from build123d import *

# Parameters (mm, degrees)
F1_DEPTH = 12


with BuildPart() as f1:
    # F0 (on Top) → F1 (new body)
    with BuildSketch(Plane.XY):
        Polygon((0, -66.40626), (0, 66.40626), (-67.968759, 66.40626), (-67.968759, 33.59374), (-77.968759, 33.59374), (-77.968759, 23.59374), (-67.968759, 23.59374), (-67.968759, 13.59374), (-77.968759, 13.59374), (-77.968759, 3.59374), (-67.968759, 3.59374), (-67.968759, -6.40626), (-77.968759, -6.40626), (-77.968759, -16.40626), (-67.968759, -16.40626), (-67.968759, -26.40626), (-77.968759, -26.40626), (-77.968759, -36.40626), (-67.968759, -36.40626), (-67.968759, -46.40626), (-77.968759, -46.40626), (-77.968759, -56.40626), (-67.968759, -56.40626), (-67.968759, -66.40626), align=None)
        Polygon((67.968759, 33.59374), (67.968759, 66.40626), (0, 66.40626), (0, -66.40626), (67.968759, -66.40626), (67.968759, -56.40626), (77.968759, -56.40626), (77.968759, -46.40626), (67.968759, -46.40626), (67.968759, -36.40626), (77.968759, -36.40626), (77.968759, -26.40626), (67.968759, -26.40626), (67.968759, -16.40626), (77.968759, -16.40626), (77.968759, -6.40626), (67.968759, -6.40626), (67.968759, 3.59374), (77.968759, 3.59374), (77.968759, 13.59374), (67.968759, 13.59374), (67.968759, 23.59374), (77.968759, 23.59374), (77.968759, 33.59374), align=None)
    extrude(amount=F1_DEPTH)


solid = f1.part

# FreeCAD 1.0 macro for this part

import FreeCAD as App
import Part
import Sketcher
from FreeCAD import Vector
Q = App.Units.Quantity

doc = App.newDocument("Part")
body = doc.addObject("PartDesign::Body", "Body")

# Sketch on XY plane
sketch1 = body.newObject("Sketcher::SketchObject", "Sketch")
sketch1.AttachmentSupport = (doc.getObject("XY_Plane"), [""])
sketch1.MapMode = "FlatFace"
sketch1.addGeometry([
    Part.LineSegment(Vector(-67.968759, 66.40626, 0), Vector(-67.968759, 33.59374, 0)),  # 0
    Part.LineSegment(Vector(-67.968759, 33.59374, 0), Vector(-77.968759, 33.59374, 0)),  # 1
    Part.LineSegment(Vector(-77.968759, 33.59374, 0), Vector(-77.968759, 23.59374, 0)),  # 2
    Part.LineSegment(Vector(-77.968759, 23.59374, 0), Vector(-67.968759, 23.59374, 0)),  # 3
    Part.LineSegment(Vector(-67.968759, 23.59374, 0), Vector(-67.968759, 13.59374, 0)),  # 4
    Part.LineSegment(Vector(-67.968759, 13.59374, 0), Vector(-77.968759, 13.59374, 0)),  # 5
    Part.LineSegment(Vector(-77.968759, 13.59374, 0), Vector(-77.968759, 3.59374, 0)),  # 6
    Part.LineSegment(Vector(-77.968759, 3.59374, 0), Vector(-67.968759, 3.59374, 0)),  # 7
    Part.LineSegment(Vector(-67.968759, 3.59374, 0), Vector(-67.968759, -6.40626, 0)),  # 8
    Part.LineSegment(Vector(-67.968759, -6.40626, 0), Vector(-77.968759, -6.40626, 0)),  # 9
    Part.LineSegment(Vector(-77.968759, -6.40626, 0), Vector(-77.968759, -16.40626, 0)),  # 10
    Part.LineSegment(Vector(-77.968759, -16.40626, 0), Vector(-67.968759, -16.40626, 0)),  # 11
    Part.LineSegment(Vector(-67.968759, -16.40626, 0), Vector(-67.968759, -26.40626, 0)),  # 12
    Part.LineSegment(Vector(-67.968759, -26.40626, 0), Vector(-77.968759, -26.40626, 0)),  # 13
    Part.LineSegment(Vector(-77.968759, -26.40626, 0), Vector(-77.968759, -36.40626, 0)),  # 14
    Part.LineSegment(Vector(-77.968759, -36.40626, 0), Vector(-67.968759, -36.40626, 0)),  # 15
    Part.LineSegment(Vector(-67.968759, -36.40626, 0), Vector(-67.968759, -46.40626, 0)),  # 16
    Part.LineSegment(Vector(-67.968759, -46.40626, 0), Vector(-77.968759, -46.40626, 0)),  # 17
    Part.LineSegment(Vector(-77.968759, -46.40626, 0), Vector(-77.968759, -56.40626, 0)),  # 18
    Part.LineSegment(Vector(-77.968759, -56.40626, 0), Vector(-67.968759, -56.40626, 0)),  # 19
    Part.LineSegment(Vector(-67.968759, -56.40626, 0), Vector(-67.968759, -66.40626, 0)),  # 20
    Part.LineSegment(Vector(-67.968759, -66.40626, 0), Vector(67.968759, -66.40626, 0)),  # 21
    Part.LineSegment(Vector(67.968759, -66.40626, 0), Vector(67.968759, -56.40626, 0)),  # 22
    Part.LineSegment(Vector(67.968759, -56.40626, 0), Vector(77.968759, -56.40626, 0)),  # 23
    Part.LineSegment(Vector(77.968759, -56.40626, 0), Vector(77.968759, -46.40626, 0)),  # 24
    Part.LineSegment(Vector(77.968759, -46.40626, 0), Vector(67.968759, -46.40626, 0)),  # 25
    Part.LineSegment(Vector(67.968759, -46.40626, 0), Vector(67.968759, -36.40626, 0)),  # 26
    Part.LineSegment(Vector(67.968759, -36.40626, 0), Vector(77.968759, -36.40626, 0)),  # 27
    Part.LineSegment(Vector(77.968759, -36.40626, 0), Vector(77.968759, -26.40626, 0)),  # 28
    Part.LineSegment(Vector(77.968759, -26.40626, 0), Vector(67.968759, -26.40626, 0)),  # 29
    Part.LineSegment(Vector(67.968759, -26.40626, 0), Vector(67.968759, -16.40626, 0)),  # 30
    Part.LineSegment(Vector(67.968759, -16.40626, 0), Vector(77.968759, -16.40626, 0)),  # 31
    Part.LineSegment(Vector(77.968759, -16.40626, 0), Vector(77.968759, -6.40626, 0)),  # 32
    Part.LineSegment(Vector(77.968759, -6.40626, 0), Vector(67.968759, -6.40626, 0)),  # 33
    Part.LineSegment(Vector(67.968759, -6.40626, 0), Vector(67.968759, 3.59374, 0)),  # 34
    Part.LineSegment(Vector(67.968759, 3.59374, 0), Vector(77.968759, 3.59374, 0)),  # 35
    Part.LineSegment(Vector(77.968759, 3.59374, 0), Vector(77.968759, 13.59374, 0)),  # 36
    Part.LineSegment(Vector(77.968759, 13.59374, 0), Vector(67.968759, 13.59374, 0)),  # 37
    Part.LineSegment(Vector(67.968759, 13.59374, 0), Vector(67.968759, 23.59374, 0)),  # 38
    Part.LineSegment(Vector(67.968759, 23.59374, 0), Vector(77.968759, 23.59374, 0)),  # 39
    Part.LineSegment(Vector(77.968759, 23.59374, 0), Vector(77.968759, 33.59374, 0)),  # 40
    Part.LineSegment(Vector(77.968759, 33.59374, 0), Vector(67.968759, 33.59374, 0)),  # 41
    Part.LineSegment(Vector(67.968759, 33.59374, 0), Vector(67.968759, 66.40626, 0)),  # 42
    Part.LineSegment(Vector(67.968759, 66.40626, 0), Vector(-67.968759, 66.40626, 0)),  # 43
], False)
sketch1.addConstraint([
    Sketcher.Constraint("Coincident", 0, 2, 1, 1),
    Sketcher.Constraint("Coincident", 1, 2, 2, 1),
    Sketcher.Constraint("Coincident", 2, 2, 3, 1),
    Sketcher.Constraint("Coincident", 3, 2, 4, 1),
    Sketcher.Constraint("Coincident", 4, 2, 5, 1),
    Sketcher.Constraint("Coincident", 5, 2, 6, 1),
    Sketcher.Constraint("Coincident", 6, 2, 7, 1),
    Sketcher.Constraint("Coincident", 7, 2, 8, 1),
    Sketcher.Constraint("Coincident", 8, 2, 9, 1),
    Sketcher.Constraint("Coincident", 9, 2, 10, 1),
    Sketcher.Constraint("Coincident", 10, 2, 11, 1),
    Sketcher.Constraint("Coincident", 11, 2, 12, 1),
    Sketcher.Constraint("Coincident", 12, 2, 13, 1),
    Sketcher.Constraint("Coincident", 13, 2, 14, 1),
    Sketcher.Constraint("Coincident", 14, 2, 15, 1),
    Sketcher.Constraint("Coincident", 15, 2, 16, 1),
    Sketcher.Constraint("Coincident", 16, 2, 17, 1),
    Sketcher.Constraint("Coincident", 17, 2, 18, 1),
    Sketcher.Constraint("Coincident", 18, 2, 19, 1),
    Sketcher.Constraint("Coincident", 19, 2, 20, 1),
    Sketcher.Constraint("Coincident", 20, 2, 21, 1),
    Sketcher.Constraint("Coincident", 21, 2, 22, 1),
    Sketcher.Constraint("Coincident", 22, 2, 23, 1),
    Sketcher.Constraint("Coincident", 23, 2, 24, 1),
    Sketcher.Constraint("Coincident", 24, 2, 25, 1),
    Sketcher.Constraint("Coincident", 25, 2, 26, 1),
    Sketcher.Constraint("Coincident", 26, 2, 27, 1),
    Sketcher.Constraint("Coincident", 27, 2, 28, 1),
    Sketcher.Constraint("Coincident", 28, 2, 29, 1),
    Sketcher.Constraint("Coincident", 29, 2, 30, 1),
    Sketcher.Constraint("Coincident", 30, 2, 31, 1),
    Sketcher.Constraint("Coincident", 31, 2, 32, 1),
    Sketcher.Constraint("Coincident", 32, 2, 33, 1),
    Sketcher.Constraint("Coincident", 33, 2, 34, 1),
    Sketcher.Constraint("Coincident", 34, 2, 35, 1),
    Sketcher.Constraint("Coincident", 35, 2, 36, 1),
    Sketcher.Constraint("Coincident", 36, 2, 37, 1),
    Sketcher.Constraint("Coincident", 37, 2, 38, 1),
    Sketcher.Constraint("Coincident", 38, 2, 39, 1),
    Sketcher.Constraint("Coincident", 39, 2, 40, 1),
    Sketcher.Constraint("Coincident", 40, 2, 41, 1),
    Sketcher.Constraint("Coincident", 41, 2, 42, 1),
    Sketcher.Constraint("Coincident", 42, 2, 43, 1),
    Sketcher.Constraint("Coincident", 43, 2, 0, 1),
    Sketcher.Constraint("Vertical", 0),
    Sketcher.Constraint("Horizontal", 1),
    Sketcher.Constraint("Vertical", 2),
    Sketcher.Constraint("Horizontal", 3),
    Sketcher.Constraint("Vertical", 4),
    Sketcher.Constraint("Horizontal", 5),
    Sketcher.Constraint("Vertical", 6),
    Sketcher.Constraint("Horizontal", 7),
    Sketcher.Constraint("Vertical", 8),
    Sketcher.Constraint("Horizontal", 9),
    Sketcher.Constraint("Vertical", 10),
    Sketcher.Constraint("Horizontal", 11),
    Sketcher.Constraint("Vertical", 12),
    Sketcher.Constraint("Horizontal", 13),
    Sketcher.Constraint("Vertical", 14),
    Sketcher.Constraint("Horizontal", 15),
    Sketcher.Constraint("Vertical", 16),
    Sketcher.Constraint("Horizontal", 17),
    Sketcher.Constraint("Vertical", 18),
    Sketcher.Constraint("Horizontal", 19),
    Sketcher.Constraint("Vertical", 20),
    Sketcher.Constraint("Horizontal", 21),
    Sketcher.Constraint("Vertical", 22),
    Sketcher.Constraint("Horizontal", 23),
    Sketcher.Constraint("Vertical", 24),
    Sketcher.Constraint("Horizontal", 25),
    Sketcher.Constraint("Vertical", 26),
    Sketcher.Constraint("Horizontal", 27),
    Sketcher.Constraint("Vertical", 28),
    Sketcher.Constraint("Horizontal", 29),
    Sketcher.Constraint("Vertical", 30),
    Sketcher.Constraint("Horizontal", 31),
    Sketcher.Constraint("Vertical", 32),
    Sketcher.Constraint("Horizontal", 33),
    Sketcher.Constraint("Vertical", 34),
    Sketcher.Constraint("Horizontal", 35),
    Sketcher.Constraint("Vertical", 36),
    Sketcher.Constraint("Horizontal", 37),
    Sketcher.Constraint("Vertical", 38),
    Sketcher.Constraint("Horizontal", 39),
    Sketcher.Constraint("Vertical", 40),
    Sketcher.Constraint("Horizontal", 41),
    Sketcher.Constraint("Vertical", 42),
    Sketcher.Constraint("Horizontal", 43),
    Sketcher.Constraint("Symmetric", 20, 2, 42, 2, -1, 1),
    Sketcher.Constraint("Symmetric", 19, 2, 22, 2, -2),
    Sketcher.Constraint("Symmetric", 17, 2, 24, 2, -2),
    Sketcher.Constraint("Symmetric", 15, 2, 26, 2, -2),
    Sketcher.Constraint("Symmetric", 13, 2, 28, 2, -2),
    Sketcher.Constraint("Symmetric", 11, 2, 30, 2, -2),
    Sketcher.Constraint("Symmetric", 9, 2, 32, 2, -2),
    Sketcher.Constraint("Symmetric", 7, 2, 34, 2, -2),
    Sketcher.Constraint("Symmetric", 5, 2, 36, 2, -2),
    Sketcher.Constraint("Symmetric", 3, 2, 38, 2, -2),
    Sketcher.Constraint("Symmetric", 1, 2, 40, 2, -2),
    Sketcher.Constraint("Vertical", 0, 2, 3, 2),
    Sketcher.Constraint("Vertical", 2, 2, 5, 2),
    Sketcher.Constraint("Vertical", 4, 2, 7, 2),
    Sketcher.Constraint("Vertical", 6, 2, 9, 2),
    Sketcher.Constraint("Vertical", 8, 2, 11, 2),
    Sketcher.Constraint("Vertical", 10, 2, 13, 2),
    Sketcher.Constraint("Vertical", 12, 2, 15, 2),
    Sketcher.Constraint("Vertical", 14, 2, 17, 2),
    Sketcher.Constraint("Vertical", 16, 2, 19, 2),
    Sketcher.Constraint("Equal", 41, 2),
    Sketcher.Constraint("Equal", 2, 4),
    Sketcher.Constraint("Equal", 4, 6),
    Sketcher.Constraint("Equal", 6, 8),
    Sketcher.Constraint("Equal", 8, 10),
    Sketcher.Constraint("Equal", 10, 12),
    Sketcher.Constraint("Equal", 12, 14),
    Sketcher.Constraint("Equal", 14, 16),
    Sketcher.Constraint("Equal", 16, 18),
    Sketcher.Constraint("Equal", 18, 20),
    Sketcher.Constraint("DistanceX", 1, 2, 1, 1, Q("10 mm")),
    Sketcher.Constraint("DistanceX", 21, 1, 21, 2, Q("135.937518 mm")),
    Sketcher.Constraint("DistanceY", 0, 2, 0, 1, Q("32.81252 mm")),
])
pad1 = body.newObject("PartDesign::Pad", "Pad")
pad1.Profile = sketch1
pad1.Length = 12

doc.recompute()
